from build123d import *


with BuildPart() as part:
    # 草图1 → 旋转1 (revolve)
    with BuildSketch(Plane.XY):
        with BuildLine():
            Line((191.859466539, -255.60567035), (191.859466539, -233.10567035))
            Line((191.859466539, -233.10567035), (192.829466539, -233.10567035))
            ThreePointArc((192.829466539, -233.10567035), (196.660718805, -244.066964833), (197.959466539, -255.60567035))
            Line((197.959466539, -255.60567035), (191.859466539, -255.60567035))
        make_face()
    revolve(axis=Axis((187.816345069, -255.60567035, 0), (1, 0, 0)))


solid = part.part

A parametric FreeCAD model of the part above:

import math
import FreeCAD as App
import Part
import Sketcher
from FreeCAD import Vector
Q = App.Units.Quantity

doc = App.newDocument("Part")
body = doc.addObject("PartDesign::Body", "Body")

# Sketch on XY plane
sketch1 = body.newObject("Sketcher::SketchObject", "Sketch")
sketch1.AttachmentSupport = (doc.getObject("XY_Plane"), [""])
sketch1.MapMode = "FlatFace"
sketch1.addGeometry([
    Part.LineSegment(Vector(191.859467, -233.10567, 0), Vector(191.859467, -255.60567, 0)),
    Part.LineSegment(Vector(191.859467, -255.60567, 0), Vector(197.959467, -255.60567, 0)),
    Part.ArcOfCircle(Part.Circle(Vector(146.052361, -255.60567, 0), Vector(0, 0, 1), 51.907105), math.radians(0), math.radians(25.687766)),
    Part.LineSegment(Vector(192.829467, -233.10567, 0), Vector(191.859467, -233.10567, 0)),
], False)
sketch1.addGeometry(Part.LineSegment(Vector(146.052361, -255.60567, 0), Vector(197.959467, -255.60567, 0)), True)  # axis
sketch1.addConstraint([
    Sketcher.Constraint("Coincident", 0, 2, 1, 1),
    Sketcher.Constraint("Coincident", 1, 2, 2, 1),
    Sketcher.Constraint("Coincident", 2, 2, 3, 1),
    Sketcher.Constraint("Coincident", 3, 2, 0, 1),
    Sketcher.Constraint("Vertical", 0),
    Sketcher.Constraint("Horizontal", 1),
    Sketcher.Constraint("Horizontal", 3),
    Sketcher.Constraint("Horizontal", 4),
    Sketcher.Constraint("Coincident", 4, 1, 2, 3),
    Sketcher.Constraint("Coincident", 4, 2, 1, 2),
    Sketcher.Constraint("DistanceX", 1, 1, 1, 2, Q("6.1 mm")),
    Sketcher.Constraint("DistanceY", 0, 2, 0, 1, Q("22.5 mm")),
    Sketcher.Constraint("DistanceX", 3, 2, 3, 1, Q("0.97 mm")),
    Sketcher.Constraint("DistanceX", -1, 1, 2, 3, Q("146.052361 mm")),
    Sketcher.Constraint("DistanceY", 2, 3, -1, 1, Q("255.60567 mm")),
])
revolution = body.newObject("PartDesign::Revolution", "Revolution")
revolution.Profile = sketch1
revolution.ReferenceAxis = (sketch1, ["Axis0"])
revolution.Angle = 360

doc.recompute()
